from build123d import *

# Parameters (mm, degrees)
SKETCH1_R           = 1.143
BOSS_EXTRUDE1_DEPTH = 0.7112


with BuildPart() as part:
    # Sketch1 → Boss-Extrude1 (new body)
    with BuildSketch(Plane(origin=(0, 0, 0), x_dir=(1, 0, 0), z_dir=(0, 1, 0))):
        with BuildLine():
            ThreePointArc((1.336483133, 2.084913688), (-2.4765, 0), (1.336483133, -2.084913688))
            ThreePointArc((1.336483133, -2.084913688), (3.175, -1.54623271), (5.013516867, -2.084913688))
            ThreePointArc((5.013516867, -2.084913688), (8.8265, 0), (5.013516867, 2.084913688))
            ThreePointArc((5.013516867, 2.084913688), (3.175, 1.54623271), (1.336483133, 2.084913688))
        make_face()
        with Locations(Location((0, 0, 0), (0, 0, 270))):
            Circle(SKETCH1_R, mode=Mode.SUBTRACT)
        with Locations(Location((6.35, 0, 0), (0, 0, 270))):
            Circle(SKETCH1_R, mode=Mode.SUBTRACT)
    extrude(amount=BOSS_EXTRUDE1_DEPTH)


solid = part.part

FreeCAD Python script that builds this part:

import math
import FreeCAD as App
import Part
import Sketcher
from FreeCAD import Vector
Q = App.Units.Quantity

doc = App.newDocument("Part")
body = doc.addObject("PartDesign::Body", "Body")

# Sketch on XZ plane
sketch1 = body.newObject("Sketcher::SketchObject", "Sketch")
sketch1.AttachmentSupport = (doc.getObject("XZ_Plane"), [""])
sketch1.MapMode = "FlatFace"
sketch1.addGeometry([
    Part.ArcOfCircle(Part.Circle(Vector(0, 0, 0), Vector(0, 0, 1), 2.4765), math.radians(57.339087), math.radians(302.660913)),  # 0
    Part.ArcOfCircle(Part.Circle(Vector(3.175, 4.953, 0), Vector(0, 0, 1), 3.406767), math.radians(-122.660913), math.radians(-57.339087)),  # 1
    Part.ArcOfCircle(Part.Circle(Vector(6.35, 0, 0), Vector(0, 0, 1), 2.4765), math.radians(-122.660913), math.radians(122.660913)),  # 2
    Part.ArcOfCircle(Part.Circle(Vector(3.175, -4.953, 0), Vector(0, 0, 1), 3.406767), math.radians(57.339087), math.radians(122.660913)),  # 3
    Part.Circle(Vector(0, 0, 0), Vector(0, 0, 1), 1.143),  # 4
    Part.Circle(Vector(6.35, 0, 0), Vector(0, 0, 1), 1.143),  # 5
], False)
sketch1.addConstraint([
    Sketcher.Constraint("Tangent", 0, 1, 1, 1),
    Sketcher.Constraint("Tangent", 1, 2, 2, 2),
    Sketcher.Constraint("Tangent", 2, 1, 3, 1),
    Sketcher.Constraint("Tangent", 3, 2, 0, 2),
    Sketcher.Constraint("Coincident", 0, 3, -1, 1),
    Sketcher.Constraint("Coincident", 4, 3, -1, 1),
    Sketcher.Constraint("Coincident", 5, 3, 2, 3),
    Sketcher.Constraint("Equal", 0, 2),
    Sketcher.Constraint("Equal", 1, 3),
    Sketcher.Constraint("Equal", 4, 5),
    Sketcher.Constraint("PointOnObject", 2, 3, -1),
    Sketcher.Constraint("Diameter", 4, Q("0.09 in")),
    Sketcher.Constraint("Radius", 0, Q("0.0975 in")),
    Sketcher.Constraint("DistanceX", -1, 1, 2, 3, Q("0.25 in")),
    Sketcher.Constraint("DistanceY", 3, 3, 1, 3, Q("0.39 in")),
])
pad1 = body.newObject("PartDesign::Pad", "Pad")
pad1.Profile = sketch1
pad1.Length = Q("0.028 in")
pad1.Reversed = True

doc.recompute()
